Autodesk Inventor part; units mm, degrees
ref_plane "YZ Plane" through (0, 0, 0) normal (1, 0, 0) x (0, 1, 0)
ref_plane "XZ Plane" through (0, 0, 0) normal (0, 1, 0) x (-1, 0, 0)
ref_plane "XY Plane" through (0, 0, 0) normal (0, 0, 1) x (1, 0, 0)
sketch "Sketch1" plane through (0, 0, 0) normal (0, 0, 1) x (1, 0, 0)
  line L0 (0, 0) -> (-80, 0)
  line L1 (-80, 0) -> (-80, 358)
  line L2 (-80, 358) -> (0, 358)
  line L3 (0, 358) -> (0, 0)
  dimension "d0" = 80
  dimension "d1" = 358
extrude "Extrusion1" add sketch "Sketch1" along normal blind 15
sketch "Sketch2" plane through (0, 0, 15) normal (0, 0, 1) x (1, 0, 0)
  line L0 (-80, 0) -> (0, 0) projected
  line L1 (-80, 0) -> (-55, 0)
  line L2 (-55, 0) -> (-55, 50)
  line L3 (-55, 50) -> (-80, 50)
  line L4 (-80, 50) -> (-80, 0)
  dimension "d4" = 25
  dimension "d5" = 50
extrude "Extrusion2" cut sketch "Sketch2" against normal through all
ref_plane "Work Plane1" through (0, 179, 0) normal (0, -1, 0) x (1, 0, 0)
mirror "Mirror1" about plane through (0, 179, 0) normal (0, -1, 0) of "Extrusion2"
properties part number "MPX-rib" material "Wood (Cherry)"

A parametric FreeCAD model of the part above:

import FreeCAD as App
import Part
import Sketcher
from FreeCAD import Vector
Q = App.Units.Quantity


def add_polygon(sketch, points):
    """Adds a closed chain of lines whose ends are joined by coincident constraints."""
    first, n = sketch.GeometryCount, len(points)
    for a, b in zip(points, points[1:] + points[:1]):
        sketch.addGeometry(Part.LineSegment(App.Vector(*a, 0), App.Vector(*b, 0)), False)
    for i in range(n):
        sketch.addConstraint(Sketcher.Constraint("Coincident", first + i, 2, first + (i + 1) % n, 1))

doc = App.newDocument("Part")
body = doc.addObject("PartDesign::Body", "Body")

# Sketch on XY plane
sketch1 = body.newObject("Sketcher::SketchObject", "Sketch")
sketch1.AttachmentSupport = (doc.getObject("XY_Plane"), [""])
sketch1.MapMode = "FlatFace"
add_polygon(sketch1, [(-80, 0), (0, 0), (0, 358), (-80, 358)])  # lines 0-3
sketch1.addConstraint(Sketcher.Constraint("Horizontal", 0))
sketch1.addConstraint(Sketcher.Constraint("Vertical", 1))
sketch1.addConstraint(Sketcher.Constraint("Horizontal", 2))
sketch1.addConstraint(Sketcher.Constraint("Vertical", 3))
sketch1.addConstraint(Sketcher.Constraint("Coincident", 0, 2, -1, 1))
sketch1.addConstraint(Sketcher.Constraint("DistanceX", 0, 1, 0, 2, Q("80 mm")))
sketch1.addConstraint(Sketcher.Constraint("DistanceY", 1, 1, 1, 2, Q("358 mm")))
pad1 = body.newObject("PartDesign::Pad", "Pad")
pad1.Profile = sketch1
pad1.Length = 15

# Sketch on XY plane
sketch2 = body.newObject("Sketcher::SketchObject", "Sketch001")
sketch2.AttachmentSupport = (doc.getObject("XY_Plane"), [""])
sketch2.MapMode = "FlatFace"
sketch2.AttachmentOffset = App.Placement(Vector(0, 0, 15), App.Rotation())
add_polygon(sketch2, [(-80, 50), (-80, 0), (-55, 0), (-55, 50)])  # lines 0-3
sketch2.addConstraint(Sketcher.Constraint("Vertical", 0))
sketch2.addConstraint(Sketcher.Constraint("Horizontal", 1))
sketch2.addConstraint(Sketcher.Constraint("Vertical", 2))
sketch2.addConstraint(Sketcher.Constraint("Horizontal", 3))
sketch2.addConstraint(Sketcher.Constraint("PointOnObject", 0, 2, -1))
sketch2.addConstraint(Sketcher.Constraint("DistanceX", 1, 1, 1, 2, Q("25 mm")))
sketch2.addConstraint(Sketcher.Constraint("DistanceY", 0, 2, 0, 1, Q("50 mm")))
sketch2.addConstraint(Sketcher.Constraint("DistanceX", 0, 2, -1, 1, Q("80 mm")))
pocket1 = body.newObject("PartDesign::Pocket", "Pocket")
pocket1.Profile = sketch2
pocket1.Type = "ThroughAll"
doc.recompute()

datumplane = body.newObject("PartDesign::Plane", "DatumPlane")
datumplane.AttachmentSupport = (doc.getObject("XZ_Plane"), [""])
datumplane.MapMode = "FlatFace"
datumplane.AttachmentOffset = App.Placement(Vector(0, 0, -179), App.Rotation())
mirrored = body.newObject("PartDesign::Mirrored", "Mirrored")
mirrored.Originals = [pocket1]
mirrored.MirrorPlane = (datumplane, [""])
body.Tip = mirrored

doc.recompute()
